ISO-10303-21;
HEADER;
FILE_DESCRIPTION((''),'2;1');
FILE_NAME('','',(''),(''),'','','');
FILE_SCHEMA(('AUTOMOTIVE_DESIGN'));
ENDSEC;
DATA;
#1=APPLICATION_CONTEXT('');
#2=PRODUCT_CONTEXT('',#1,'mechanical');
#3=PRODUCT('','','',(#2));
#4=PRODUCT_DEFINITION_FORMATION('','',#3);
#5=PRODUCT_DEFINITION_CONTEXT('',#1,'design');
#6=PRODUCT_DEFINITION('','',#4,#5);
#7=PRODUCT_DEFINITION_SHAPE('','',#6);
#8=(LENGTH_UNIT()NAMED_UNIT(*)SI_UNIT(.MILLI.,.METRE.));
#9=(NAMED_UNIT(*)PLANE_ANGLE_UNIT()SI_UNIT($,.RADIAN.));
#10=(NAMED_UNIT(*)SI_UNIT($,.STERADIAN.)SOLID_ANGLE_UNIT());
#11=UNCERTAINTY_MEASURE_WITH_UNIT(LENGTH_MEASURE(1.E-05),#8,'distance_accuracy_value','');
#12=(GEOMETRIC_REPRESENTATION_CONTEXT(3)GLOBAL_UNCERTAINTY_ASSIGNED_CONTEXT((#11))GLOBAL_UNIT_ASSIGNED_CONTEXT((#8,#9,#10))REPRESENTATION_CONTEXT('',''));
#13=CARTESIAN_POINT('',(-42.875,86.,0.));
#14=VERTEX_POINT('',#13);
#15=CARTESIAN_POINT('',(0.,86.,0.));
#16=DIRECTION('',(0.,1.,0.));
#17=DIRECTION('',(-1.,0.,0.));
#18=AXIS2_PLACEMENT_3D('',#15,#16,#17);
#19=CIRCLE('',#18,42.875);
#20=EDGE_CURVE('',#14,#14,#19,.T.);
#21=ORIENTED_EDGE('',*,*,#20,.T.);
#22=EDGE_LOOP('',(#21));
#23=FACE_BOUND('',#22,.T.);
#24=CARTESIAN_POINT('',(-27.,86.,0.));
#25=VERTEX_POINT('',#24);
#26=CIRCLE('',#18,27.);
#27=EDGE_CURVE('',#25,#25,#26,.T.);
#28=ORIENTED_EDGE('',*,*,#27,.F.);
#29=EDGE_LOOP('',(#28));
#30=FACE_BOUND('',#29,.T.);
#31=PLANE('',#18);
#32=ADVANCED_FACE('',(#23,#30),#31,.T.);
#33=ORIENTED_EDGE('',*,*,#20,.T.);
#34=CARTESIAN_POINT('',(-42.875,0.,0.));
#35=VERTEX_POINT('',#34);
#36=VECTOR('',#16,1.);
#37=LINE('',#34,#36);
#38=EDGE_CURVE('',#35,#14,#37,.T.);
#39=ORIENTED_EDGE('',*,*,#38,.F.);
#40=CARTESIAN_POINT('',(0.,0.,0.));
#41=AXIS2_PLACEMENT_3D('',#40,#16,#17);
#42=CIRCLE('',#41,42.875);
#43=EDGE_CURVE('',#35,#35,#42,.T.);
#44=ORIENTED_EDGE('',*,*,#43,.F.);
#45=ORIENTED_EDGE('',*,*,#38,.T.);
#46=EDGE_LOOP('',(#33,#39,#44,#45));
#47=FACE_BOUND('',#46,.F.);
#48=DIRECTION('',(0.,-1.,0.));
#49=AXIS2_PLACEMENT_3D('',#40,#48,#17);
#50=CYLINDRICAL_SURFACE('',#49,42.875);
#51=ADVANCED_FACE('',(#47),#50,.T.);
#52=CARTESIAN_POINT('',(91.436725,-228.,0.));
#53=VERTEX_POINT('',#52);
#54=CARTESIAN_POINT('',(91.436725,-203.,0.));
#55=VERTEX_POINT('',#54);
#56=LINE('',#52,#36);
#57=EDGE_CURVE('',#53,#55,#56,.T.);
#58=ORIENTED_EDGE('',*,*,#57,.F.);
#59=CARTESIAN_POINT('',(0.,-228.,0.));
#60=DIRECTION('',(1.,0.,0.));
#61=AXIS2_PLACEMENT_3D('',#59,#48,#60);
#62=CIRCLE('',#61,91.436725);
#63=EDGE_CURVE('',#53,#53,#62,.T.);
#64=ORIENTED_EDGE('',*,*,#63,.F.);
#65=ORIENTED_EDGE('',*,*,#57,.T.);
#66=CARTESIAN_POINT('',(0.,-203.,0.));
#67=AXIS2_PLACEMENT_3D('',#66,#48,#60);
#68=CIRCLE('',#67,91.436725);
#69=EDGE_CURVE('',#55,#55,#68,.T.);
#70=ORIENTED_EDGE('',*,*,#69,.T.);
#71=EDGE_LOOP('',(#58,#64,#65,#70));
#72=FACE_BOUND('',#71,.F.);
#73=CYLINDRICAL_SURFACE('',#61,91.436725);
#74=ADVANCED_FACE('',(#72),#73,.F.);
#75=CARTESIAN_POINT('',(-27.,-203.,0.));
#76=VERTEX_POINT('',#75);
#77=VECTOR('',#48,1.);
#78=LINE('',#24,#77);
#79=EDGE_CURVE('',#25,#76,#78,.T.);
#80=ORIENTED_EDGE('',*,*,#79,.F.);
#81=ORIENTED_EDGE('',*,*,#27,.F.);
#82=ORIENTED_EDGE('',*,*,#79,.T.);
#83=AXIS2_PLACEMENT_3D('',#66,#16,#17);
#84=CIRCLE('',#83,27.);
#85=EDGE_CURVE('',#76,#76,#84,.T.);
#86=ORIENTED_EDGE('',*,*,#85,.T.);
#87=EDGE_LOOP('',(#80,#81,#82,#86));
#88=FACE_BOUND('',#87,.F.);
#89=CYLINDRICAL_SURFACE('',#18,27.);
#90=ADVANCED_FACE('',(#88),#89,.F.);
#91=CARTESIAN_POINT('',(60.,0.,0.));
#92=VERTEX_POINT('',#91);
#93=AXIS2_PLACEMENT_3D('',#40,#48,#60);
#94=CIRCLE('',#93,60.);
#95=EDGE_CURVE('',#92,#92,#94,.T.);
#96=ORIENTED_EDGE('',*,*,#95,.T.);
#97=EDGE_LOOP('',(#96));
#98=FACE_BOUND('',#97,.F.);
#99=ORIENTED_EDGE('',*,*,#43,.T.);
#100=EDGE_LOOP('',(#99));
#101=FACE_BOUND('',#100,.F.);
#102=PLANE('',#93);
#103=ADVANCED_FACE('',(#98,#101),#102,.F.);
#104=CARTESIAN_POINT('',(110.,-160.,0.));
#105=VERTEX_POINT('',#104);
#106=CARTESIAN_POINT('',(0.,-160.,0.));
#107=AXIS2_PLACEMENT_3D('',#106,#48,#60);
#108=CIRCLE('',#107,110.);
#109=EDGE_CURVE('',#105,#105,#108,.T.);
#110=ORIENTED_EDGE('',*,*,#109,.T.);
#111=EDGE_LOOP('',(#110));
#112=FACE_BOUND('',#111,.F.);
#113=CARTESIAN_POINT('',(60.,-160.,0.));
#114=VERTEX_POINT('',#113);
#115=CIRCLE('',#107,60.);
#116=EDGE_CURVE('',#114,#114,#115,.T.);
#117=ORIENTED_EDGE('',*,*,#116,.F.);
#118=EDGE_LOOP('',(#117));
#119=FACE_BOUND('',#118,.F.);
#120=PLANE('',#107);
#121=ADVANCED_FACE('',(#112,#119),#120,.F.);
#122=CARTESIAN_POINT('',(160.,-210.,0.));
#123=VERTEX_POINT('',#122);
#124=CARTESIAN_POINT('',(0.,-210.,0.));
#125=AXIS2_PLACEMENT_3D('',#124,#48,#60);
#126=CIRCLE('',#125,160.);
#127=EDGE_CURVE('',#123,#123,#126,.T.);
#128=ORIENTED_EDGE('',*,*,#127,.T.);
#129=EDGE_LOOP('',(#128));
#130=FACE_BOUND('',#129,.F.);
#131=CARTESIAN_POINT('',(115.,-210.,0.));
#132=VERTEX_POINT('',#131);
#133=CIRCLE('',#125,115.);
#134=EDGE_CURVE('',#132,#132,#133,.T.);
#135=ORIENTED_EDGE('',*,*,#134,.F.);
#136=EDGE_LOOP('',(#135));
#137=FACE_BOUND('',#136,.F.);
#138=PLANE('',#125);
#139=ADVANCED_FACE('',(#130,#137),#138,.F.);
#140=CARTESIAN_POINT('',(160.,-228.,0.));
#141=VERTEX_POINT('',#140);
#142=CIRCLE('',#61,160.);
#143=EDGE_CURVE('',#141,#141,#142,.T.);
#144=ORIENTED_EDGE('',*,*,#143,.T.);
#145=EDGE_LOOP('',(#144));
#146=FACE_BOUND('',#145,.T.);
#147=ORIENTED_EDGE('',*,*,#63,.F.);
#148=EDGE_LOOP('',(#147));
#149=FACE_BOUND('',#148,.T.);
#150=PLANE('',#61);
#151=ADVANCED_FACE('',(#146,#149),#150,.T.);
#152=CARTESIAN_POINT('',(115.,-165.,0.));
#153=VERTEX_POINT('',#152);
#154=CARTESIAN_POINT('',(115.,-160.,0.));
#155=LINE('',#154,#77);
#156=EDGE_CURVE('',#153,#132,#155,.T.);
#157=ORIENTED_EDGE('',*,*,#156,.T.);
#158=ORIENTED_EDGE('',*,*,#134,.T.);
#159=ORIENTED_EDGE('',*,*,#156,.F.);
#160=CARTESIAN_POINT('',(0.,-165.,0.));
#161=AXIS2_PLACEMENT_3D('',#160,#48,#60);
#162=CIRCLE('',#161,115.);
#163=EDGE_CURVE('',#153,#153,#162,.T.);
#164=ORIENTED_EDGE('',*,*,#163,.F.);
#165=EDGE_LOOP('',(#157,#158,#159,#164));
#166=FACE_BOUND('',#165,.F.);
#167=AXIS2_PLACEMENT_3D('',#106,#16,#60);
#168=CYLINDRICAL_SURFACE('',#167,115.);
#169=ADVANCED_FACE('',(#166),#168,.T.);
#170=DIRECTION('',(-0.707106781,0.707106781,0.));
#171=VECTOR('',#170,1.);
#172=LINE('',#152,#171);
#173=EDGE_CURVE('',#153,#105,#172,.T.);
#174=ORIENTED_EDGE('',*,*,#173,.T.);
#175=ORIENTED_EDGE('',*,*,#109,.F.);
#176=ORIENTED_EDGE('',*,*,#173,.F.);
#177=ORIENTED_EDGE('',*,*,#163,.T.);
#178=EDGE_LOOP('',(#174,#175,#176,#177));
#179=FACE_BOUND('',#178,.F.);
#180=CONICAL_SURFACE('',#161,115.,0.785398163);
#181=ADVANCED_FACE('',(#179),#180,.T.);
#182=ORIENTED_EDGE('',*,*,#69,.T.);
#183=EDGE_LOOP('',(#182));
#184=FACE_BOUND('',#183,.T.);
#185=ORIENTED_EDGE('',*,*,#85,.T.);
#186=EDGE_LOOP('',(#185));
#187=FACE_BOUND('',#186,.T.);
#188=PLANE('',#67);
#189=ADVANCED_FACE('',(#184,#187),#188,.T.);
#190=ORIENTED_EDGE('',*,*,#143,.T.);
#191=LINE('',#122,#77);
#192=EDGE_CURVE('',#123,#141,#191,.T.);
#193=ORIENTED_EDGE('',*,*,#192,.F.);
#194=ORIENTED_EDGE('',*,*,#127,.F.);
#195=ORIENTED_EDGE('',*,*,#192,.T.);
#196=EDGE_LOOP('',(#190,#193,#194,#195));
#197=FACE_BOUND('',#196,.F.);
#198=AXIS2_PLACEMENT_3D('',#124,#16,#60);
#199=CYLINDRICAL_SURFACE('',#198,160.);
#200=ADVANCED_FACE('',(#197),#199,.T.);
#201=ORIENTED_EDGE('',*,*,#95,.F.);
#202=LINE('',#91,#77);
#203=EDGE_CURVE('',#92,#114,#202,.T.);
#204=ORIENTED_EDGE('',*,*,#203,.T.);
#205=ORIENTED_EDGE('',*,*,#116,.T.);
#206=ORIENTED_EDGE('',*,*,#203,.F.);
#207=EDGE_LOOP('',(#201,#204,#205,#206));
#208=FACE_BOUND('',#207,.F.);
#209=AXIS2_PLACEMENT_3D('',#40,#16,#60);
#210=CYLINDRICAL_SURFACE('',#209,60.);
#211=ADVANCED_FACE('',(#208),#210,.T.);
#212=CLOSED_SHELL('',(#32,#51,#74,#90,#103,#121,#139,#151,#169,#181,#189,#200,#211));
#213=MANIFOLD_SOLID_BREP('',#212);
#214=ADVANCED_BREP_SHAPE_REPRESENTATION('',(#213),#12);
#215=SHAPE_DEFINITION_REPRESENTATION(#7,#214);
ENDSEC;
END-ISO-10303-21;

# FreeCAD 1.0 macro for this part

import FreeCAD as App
import Part
import Sketcher


def edges_at(feature, points):
    """Names of the edges that pass closest to the given points."""
    edges = feature.Shape.Edges
    near = lambda p: min(range(len(edges)), key=lambda i: edges[i].distToShape(Part.Vertex(*p))[0])
    return sorted({f"Edge{near(p) + 1}" for p in points})

doc = App.newDocument("Part")
body = doc.addObject("PartDesign::Body", "Body")

# Sketch on XZ plane
sketch1 = body.newObject("Sketcher::SketchObject", "Sketch")
sketch1.AttachmentSupport = (doc.getObject("XZ_Plane"), [""])
sketch1.MapMode = "FlatFace"
sketch1.addGeometry(Part.Circle(App.Vector(0, 0, 0), App.Vector(0, 0, 1), 60), False)
sketch1.addConstraint(Sketcher.Constraint("Coincident", 0, 3, -1, 1))
sketch1.addConstraint(Sketcher.Constraint("Diameter", 0, 120.0))
pad1 = body.newObject("PartDesign::Pad", "Pad")
pad1.Profile = sketch1
pad1.Length = 160

# Sketch on XZ plane
sketch2 = body.newObject("Sketcher::SketchObject", "Sketch001")
sketch2.AttachmentSupport = (doc.getObject("XZ_Plane"), [""])
sketch2.MapMode = "FlatFace"
sketch2.AttachmentOffset = App.Placement(App.Vector(0, 0, 160), App.Rotation())
sketch2.addGeometry(Part.Circle(App.Vector(0, 0, 0), App.Vector(0, 0, 1), 115), False)
sketch2.addConstraint(Sketcher.Constraint("Coincident", 0, 3, -1, 1))
sketch2.addConstraint(Sketcher.Constraint("Diameter", 0, 230.0))
pad2 = body.newObject("PartDesign::Pad", "Pad001")
pad2.Profile = sketch2
pad2.Length = 50

# Sketch on XZ plane
sketch3 = body.newObject("Sketcher::SketchObject", "Sketch002")
sketch3.AttachmentSupport = (doc.getObject("XZ_Plane"), [""])
sketch3.MapMode = "FlatFace"
sketch3.AttachmentOffset = App.Placement(App.Vector(0, 0, 210), App.Rotation())
sketch3.addGeometry(Part.Circle(App.Vector(0, 0, 0), App.Vector(0, 0, 1), 160), False)
sketch3.addConstraint(Sketcher.Constraint("Coincident", 0, 3, -1, 1))
sketch3.addConstraint(Sketcher.Constraint("Diameter", 0, 320.0))
pad3 = body.newObject("PartDesign::Pad", "Pad002")
pad3.Profile = sketch3
pad3.Length = 18
doc.recompute()

chamfer = body.newObject("PartDesign::Chamfer", "Chamfer")
chamfer.Base = (pad3, edges_at(pad3, [(-115, -160, 0)]))
chamfer.Size = 5

# Sketch on XZ plane
sketch4 = body.newObject("Sketcher::SketchObject", "Sketch003")
sketch4.AttachmentSupport = (doc.getObject("XZ_Plane"), [""])
sketch4.MapMode = "FlatFace"
sketch4.addGeometry(Part.Circle(App.Vector(0, 0, 0), App.Vector(0, 0, 1), 43), False)
sketch4.addConstraint(Sketcher.Constraint("Coincident", 0, 3, -1, 1))
sketch4.addConstraint(Sketcher.Constraint("Diameter", 0, 85.75))
pad4 = body.newObject("PartDesign::Pad", "Pad003")
pad4.Profile = sketch4
pad4.Length = 86
pad4.Reversed = True

# Sketch on XZ plane
sketch5 = body.newObject("Sketcher::SketchObject", "Sketch004")
sketch5.AttachmentSupport = (doc.getObject("XZ_Plane"), [""])
sketch5.MapMode = "FlatFace"
sketch5.AttachmentOffset = App.Placement(App.Vector(0, 0, -86), App.Rotation())
sketch5.addGeometry(Part.Circle(App.Vector(0, 0, 0), App.Vector(0, 0, 1), 27), False)
sketch5.addConstraint(Sketcher.Constraint("Coincident", 0, 3, -1, 1))
sketch5.addConstraint(Sketcher.Constraint("Diameter", 0, 54.0))
pocket1 = body.newObject("PartDesign::Pocket", "Pocket")
pocket1.Profile = sketch5
pocket1.Length = 430
pocket1.Reversed = True

# Sketch on XZ plane
sketch6 = body.newObject("Sketcher::SketchObject", "Sketch005")
sketch6.AttachmentSupport = (doc.getObject("XZ_Plane"), [""])
sketch6.MapMode = "FlatFace"
sketch6.AttachmentOffset = App.Placement(App.Vector(0, 0, 228), App.Rotation())
sketch6.addGeometry(Part.Circle(App.Vector(0, 0, 0), App.Vector(0, 0, 1), 91), False)
sketch6.addConstraint(Sketcher.Constraint("Coincident", 0, 3, -1, 1))
sketch6.addConstraint(Sketcher.Constraint("Diameter", 0, 182.87345))
pocket2 = body.newObject("PartDesign::Pocket", "Pocket001")
pocket2.Profile = sketch6
pocket2.Length = 25

doc.recompute()
